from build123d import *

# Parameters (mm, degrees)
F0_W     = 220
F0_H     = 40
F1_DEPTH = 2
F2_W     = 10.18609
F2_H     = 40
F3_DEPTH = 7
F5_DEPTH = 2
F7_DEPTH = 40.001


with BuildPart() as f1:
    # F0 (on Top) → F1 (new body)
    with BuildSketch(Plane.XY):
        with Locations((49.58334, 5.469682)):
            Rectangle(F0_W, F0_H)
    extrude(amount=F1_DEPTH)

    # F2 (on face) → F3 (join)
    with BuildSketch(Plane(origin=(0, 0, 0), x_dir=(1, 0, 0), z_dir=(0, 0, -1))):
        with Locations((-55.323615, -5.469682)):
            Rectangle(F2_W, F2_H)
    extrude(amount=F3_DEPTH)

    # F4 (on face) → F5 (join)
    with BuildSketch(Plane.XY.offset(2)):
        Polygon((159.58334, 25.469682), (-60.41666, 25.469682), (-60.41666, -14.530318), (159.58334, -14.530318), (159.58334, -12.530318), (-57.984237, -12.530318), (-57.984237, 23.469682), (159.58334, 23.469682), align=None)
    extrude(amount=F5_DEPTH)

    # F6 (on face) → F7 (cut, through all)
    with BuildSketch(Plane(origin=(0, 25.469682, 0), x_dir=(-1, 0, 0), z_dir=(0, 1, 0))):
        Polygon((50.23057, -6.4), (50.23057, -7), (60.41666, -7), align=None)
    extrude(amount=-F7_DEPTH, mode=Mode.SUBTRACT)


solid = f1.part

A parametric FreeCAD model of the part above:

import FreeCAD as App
import Part
import Sketcher
Q = App.Units.Quantity


def add_polygon(sketch, points):
    """Adds a closed chain of lines whose ends are joined by coincident constraints."""
    first, n = sketch.GeometryCount, len(points)
    for a, b in zip(points, points[1:] + points[:1]):
        sketch.addGeometry(Part.LineSegment(App.Vector(*a, 0), App.Vector(*b, 0)), False)
    for i in range(n):
        sketch.addConstraint(Sketcher.Constraint("Coincident", first + i, 2, first + (i + 1) % n, 1))

doc = App.newDocument("Part")
body = doc.addObject("PartDesign::Body", "Body")

sketch1 = body.newObject("Sketcher::SketchObject", "Sketch")
sketch1.AttachmentSupport = (doc.getObject("XY_Plane"), [""])
sketch1.MapMode = "FlatFace"
add_polygon(sketch1, [(-60.41666, 25.469682), (-60.41666, -14.530318), (159.58334, -14.530318), (159.58334, 25.469682)])
sketch1.addConstraint(Sketcher.Constraint("Vertical", 0))
sketch1.addConstraint(Sketcher.Constraint("Horizontal", 1))
sketch1.addConstraint(Sketcher.Constraint("Vertical", 2))
sketch1.addConstraint(Sketcher.Constraint("Horizontal", 3))
sketch1.addConstraint(Sketcher.Constraint("DistanceX", 1, 1, 1, 2, Q("220 mm")))
sketch1.addConstraint(Sketcher.Constraint("DistanceY", 0, 2, 0, 1, Q("40 mm")))
sketch1.addConstraint(Sketcher.Constraint("DistanceX", 0, 2, -1, 1, Q("60.41666 mm")))
sketch1.addConstraint(Sketcher.Constraint("DistanceY", -1, 1, 2, 2, Q("25.469682 mm")))
pad1 = body.newObject("PartDesign::Pad", "Pad")
pad1.Profile = sketch1
pad1.Length = 2

sketch2 = body.newObject("Sketcher::SketchObject", "Sketch001")
sketch2.AttachmentSupport = (doc.getObject("XY_Plane"), [""])
sketch2.MapMode = "FlatFace"
add_polygon(sketch2, [(-60.41666, -14.530318), (-60.41666, 25.469682), (-50.23057, 25.469682), (-50.23057, -14.530318)])
sketch2.addConstraint(Sketcher.Constraint("Vertical", 0))
sketch2.addConstraint(Sketcher.Constraint("Horizontal", 1))
sketch2.addConstraint(Sketcher.Constraint("Vertical", 2))
sketch2.addConstraint(Sketcher.Constraint("Horizontal", 3))
sketch2.addConstraint(Sketcher.Constraint("DistanceY", 0, 1, 0, 2, Q("40 mm")))
sketch2.addConstraint(Sketcher.Constraint("DistanceX", 1, 1, 1, 2, Q("10.18609 mm")))
sketch2.addConstraint(Sketcher.Constraint("DistanceX", 0, 2, -1, 1, Q("60.41666 mm")))
sketch2.addConstraint(Sketcher.Constraint("DistanceY", -1, 1, 0, 2, Q("25.469682 mm")))
pad2 = body.newObject("PartDesign::Pad", "Pad001")
pad2.Profile = sketch2
pad2.Length = 7
pad2.Reversed = True

sketch3 = body.newObject("Sketcher::SketchObject", "Sketch002")
sketch3.AttachmentSupport = (doc.getObject("XY_Plane"), [""])
sketch3.MapMode = "FlatFace"
sketch3.AttachmentOffset = App.Placement(App.Vector(0, 0, 2), App.Rotation())
add_polygon(sketch3, [(159.58334, 25.469682), (-60.41666, 25.469682), (-60.41666, -14.530318), (159.58334, -14.530318), (159.58334, -12.530318), (-57.984237, -12.530318), (-57.984237, 23.469682), (159.58334, 23.469682)])
sketch3.addConstraint(Sketcher.Constraint("Horizontal", 0))
sketch3.addConstraint(Sketcher.Constraint("Vertical", 1))
sketch3.addConstraint(Sketcher.Constraint("Horizontal", 2))
sketch3.addConstraint(Sketcher.Constraint("Vertical", 3))
sketch3.addConstraint(Sketcher.Constraint("Horizontal", 4))
sketch3.addConstraint(Sketcher.Constraint("Vertical", 5))
sketch3.addConstraint(Sketcher.Constraint("Horizontal", 6))
sketch3.addConstraint(Sketcher.Constraint("Vertical", 7))
sketch3.addConstraint(Sketcher.Constraint("Vertical", 3, 2, 6, 2))
sketch3.addConstraint(Sketcher.Constraint("Equal", 3, 7))
sketch3.addConstraint(Sketcher.Constraint("DistanceX", 0, 2, 0, 1, Q("220 mm")))
sketch3.addConstraint(Sketcher.Constraint("DistanceY", 1, 2, 1, 1, Q("40 mm")))
sketch3.addConstraint(Sketcher.Constraint("DistanceY", 3, 1, 3, 2, Q("2 mm")))
sketch3.addConstraint(Sketcher.Constraint("DistanceX", 4, 2, 4, 1, Q("217.567577 mm")))
sketch3.addConstraint(Sketcher.Constraint("DistanceX", 0, 2, -1, 1, Q("60.41666 mm")))
sketch3.addConstraint(Sketcher.Constraint("DistanceY", -1, 1, 0, 2, Q("25.469682 mm")))
pad3 = body.newObject("PartDesign::Pad", "Pad002")
pad3.Profile = sketch3
pad3.Length = 2

sketch4 = body.newObject("Sketcher::SketchObject", "Sketch003")
sketch4.AttachmentSupport = (doc.getObject("XZ_Plane"), [""])
sketch4.MapMode = "FlatFace"
sketch4.AttachmentOffset = App.Placement(App.Vector(0, 0, -25.469682), App.Rotation())
add_polygon(sketch4, [(-50.23057, -6.4), (-50.23057, -7), (-60.41666, -7)])
sketch4.addConstraint(Sketcher.Constraint("Vertical", 0))
sketch4.addConstraint(Sketcher.Constraint("Horizontal", 1))
sketch4.addConstraint(Sketcher.Constraint("DistanceY", 0, 2, 0, 1, Q("0.6 mm")))
sketch4.addConstraint(Sketcher.Constraint("DistanceY", 0, 2, -1, 1, Q("7 mm")))
sketch4.addConstraint(Sketcher.Constraint("DistanceX", 1, 2, 1, 1, Q("10.18609 mm")))
sketch4.addConstraint(Sketcher.Constraint("DistanceX", 0, 2, -1, 1, Q("50.23057 mm")))
pocket1 = body.newObject("PartDesign::Pocket", "Pocket")
pocket1.Profile = sketch4
pocket1.Type = "ThroughAll"
pocket1.Reversed = True

doc.recompute()
